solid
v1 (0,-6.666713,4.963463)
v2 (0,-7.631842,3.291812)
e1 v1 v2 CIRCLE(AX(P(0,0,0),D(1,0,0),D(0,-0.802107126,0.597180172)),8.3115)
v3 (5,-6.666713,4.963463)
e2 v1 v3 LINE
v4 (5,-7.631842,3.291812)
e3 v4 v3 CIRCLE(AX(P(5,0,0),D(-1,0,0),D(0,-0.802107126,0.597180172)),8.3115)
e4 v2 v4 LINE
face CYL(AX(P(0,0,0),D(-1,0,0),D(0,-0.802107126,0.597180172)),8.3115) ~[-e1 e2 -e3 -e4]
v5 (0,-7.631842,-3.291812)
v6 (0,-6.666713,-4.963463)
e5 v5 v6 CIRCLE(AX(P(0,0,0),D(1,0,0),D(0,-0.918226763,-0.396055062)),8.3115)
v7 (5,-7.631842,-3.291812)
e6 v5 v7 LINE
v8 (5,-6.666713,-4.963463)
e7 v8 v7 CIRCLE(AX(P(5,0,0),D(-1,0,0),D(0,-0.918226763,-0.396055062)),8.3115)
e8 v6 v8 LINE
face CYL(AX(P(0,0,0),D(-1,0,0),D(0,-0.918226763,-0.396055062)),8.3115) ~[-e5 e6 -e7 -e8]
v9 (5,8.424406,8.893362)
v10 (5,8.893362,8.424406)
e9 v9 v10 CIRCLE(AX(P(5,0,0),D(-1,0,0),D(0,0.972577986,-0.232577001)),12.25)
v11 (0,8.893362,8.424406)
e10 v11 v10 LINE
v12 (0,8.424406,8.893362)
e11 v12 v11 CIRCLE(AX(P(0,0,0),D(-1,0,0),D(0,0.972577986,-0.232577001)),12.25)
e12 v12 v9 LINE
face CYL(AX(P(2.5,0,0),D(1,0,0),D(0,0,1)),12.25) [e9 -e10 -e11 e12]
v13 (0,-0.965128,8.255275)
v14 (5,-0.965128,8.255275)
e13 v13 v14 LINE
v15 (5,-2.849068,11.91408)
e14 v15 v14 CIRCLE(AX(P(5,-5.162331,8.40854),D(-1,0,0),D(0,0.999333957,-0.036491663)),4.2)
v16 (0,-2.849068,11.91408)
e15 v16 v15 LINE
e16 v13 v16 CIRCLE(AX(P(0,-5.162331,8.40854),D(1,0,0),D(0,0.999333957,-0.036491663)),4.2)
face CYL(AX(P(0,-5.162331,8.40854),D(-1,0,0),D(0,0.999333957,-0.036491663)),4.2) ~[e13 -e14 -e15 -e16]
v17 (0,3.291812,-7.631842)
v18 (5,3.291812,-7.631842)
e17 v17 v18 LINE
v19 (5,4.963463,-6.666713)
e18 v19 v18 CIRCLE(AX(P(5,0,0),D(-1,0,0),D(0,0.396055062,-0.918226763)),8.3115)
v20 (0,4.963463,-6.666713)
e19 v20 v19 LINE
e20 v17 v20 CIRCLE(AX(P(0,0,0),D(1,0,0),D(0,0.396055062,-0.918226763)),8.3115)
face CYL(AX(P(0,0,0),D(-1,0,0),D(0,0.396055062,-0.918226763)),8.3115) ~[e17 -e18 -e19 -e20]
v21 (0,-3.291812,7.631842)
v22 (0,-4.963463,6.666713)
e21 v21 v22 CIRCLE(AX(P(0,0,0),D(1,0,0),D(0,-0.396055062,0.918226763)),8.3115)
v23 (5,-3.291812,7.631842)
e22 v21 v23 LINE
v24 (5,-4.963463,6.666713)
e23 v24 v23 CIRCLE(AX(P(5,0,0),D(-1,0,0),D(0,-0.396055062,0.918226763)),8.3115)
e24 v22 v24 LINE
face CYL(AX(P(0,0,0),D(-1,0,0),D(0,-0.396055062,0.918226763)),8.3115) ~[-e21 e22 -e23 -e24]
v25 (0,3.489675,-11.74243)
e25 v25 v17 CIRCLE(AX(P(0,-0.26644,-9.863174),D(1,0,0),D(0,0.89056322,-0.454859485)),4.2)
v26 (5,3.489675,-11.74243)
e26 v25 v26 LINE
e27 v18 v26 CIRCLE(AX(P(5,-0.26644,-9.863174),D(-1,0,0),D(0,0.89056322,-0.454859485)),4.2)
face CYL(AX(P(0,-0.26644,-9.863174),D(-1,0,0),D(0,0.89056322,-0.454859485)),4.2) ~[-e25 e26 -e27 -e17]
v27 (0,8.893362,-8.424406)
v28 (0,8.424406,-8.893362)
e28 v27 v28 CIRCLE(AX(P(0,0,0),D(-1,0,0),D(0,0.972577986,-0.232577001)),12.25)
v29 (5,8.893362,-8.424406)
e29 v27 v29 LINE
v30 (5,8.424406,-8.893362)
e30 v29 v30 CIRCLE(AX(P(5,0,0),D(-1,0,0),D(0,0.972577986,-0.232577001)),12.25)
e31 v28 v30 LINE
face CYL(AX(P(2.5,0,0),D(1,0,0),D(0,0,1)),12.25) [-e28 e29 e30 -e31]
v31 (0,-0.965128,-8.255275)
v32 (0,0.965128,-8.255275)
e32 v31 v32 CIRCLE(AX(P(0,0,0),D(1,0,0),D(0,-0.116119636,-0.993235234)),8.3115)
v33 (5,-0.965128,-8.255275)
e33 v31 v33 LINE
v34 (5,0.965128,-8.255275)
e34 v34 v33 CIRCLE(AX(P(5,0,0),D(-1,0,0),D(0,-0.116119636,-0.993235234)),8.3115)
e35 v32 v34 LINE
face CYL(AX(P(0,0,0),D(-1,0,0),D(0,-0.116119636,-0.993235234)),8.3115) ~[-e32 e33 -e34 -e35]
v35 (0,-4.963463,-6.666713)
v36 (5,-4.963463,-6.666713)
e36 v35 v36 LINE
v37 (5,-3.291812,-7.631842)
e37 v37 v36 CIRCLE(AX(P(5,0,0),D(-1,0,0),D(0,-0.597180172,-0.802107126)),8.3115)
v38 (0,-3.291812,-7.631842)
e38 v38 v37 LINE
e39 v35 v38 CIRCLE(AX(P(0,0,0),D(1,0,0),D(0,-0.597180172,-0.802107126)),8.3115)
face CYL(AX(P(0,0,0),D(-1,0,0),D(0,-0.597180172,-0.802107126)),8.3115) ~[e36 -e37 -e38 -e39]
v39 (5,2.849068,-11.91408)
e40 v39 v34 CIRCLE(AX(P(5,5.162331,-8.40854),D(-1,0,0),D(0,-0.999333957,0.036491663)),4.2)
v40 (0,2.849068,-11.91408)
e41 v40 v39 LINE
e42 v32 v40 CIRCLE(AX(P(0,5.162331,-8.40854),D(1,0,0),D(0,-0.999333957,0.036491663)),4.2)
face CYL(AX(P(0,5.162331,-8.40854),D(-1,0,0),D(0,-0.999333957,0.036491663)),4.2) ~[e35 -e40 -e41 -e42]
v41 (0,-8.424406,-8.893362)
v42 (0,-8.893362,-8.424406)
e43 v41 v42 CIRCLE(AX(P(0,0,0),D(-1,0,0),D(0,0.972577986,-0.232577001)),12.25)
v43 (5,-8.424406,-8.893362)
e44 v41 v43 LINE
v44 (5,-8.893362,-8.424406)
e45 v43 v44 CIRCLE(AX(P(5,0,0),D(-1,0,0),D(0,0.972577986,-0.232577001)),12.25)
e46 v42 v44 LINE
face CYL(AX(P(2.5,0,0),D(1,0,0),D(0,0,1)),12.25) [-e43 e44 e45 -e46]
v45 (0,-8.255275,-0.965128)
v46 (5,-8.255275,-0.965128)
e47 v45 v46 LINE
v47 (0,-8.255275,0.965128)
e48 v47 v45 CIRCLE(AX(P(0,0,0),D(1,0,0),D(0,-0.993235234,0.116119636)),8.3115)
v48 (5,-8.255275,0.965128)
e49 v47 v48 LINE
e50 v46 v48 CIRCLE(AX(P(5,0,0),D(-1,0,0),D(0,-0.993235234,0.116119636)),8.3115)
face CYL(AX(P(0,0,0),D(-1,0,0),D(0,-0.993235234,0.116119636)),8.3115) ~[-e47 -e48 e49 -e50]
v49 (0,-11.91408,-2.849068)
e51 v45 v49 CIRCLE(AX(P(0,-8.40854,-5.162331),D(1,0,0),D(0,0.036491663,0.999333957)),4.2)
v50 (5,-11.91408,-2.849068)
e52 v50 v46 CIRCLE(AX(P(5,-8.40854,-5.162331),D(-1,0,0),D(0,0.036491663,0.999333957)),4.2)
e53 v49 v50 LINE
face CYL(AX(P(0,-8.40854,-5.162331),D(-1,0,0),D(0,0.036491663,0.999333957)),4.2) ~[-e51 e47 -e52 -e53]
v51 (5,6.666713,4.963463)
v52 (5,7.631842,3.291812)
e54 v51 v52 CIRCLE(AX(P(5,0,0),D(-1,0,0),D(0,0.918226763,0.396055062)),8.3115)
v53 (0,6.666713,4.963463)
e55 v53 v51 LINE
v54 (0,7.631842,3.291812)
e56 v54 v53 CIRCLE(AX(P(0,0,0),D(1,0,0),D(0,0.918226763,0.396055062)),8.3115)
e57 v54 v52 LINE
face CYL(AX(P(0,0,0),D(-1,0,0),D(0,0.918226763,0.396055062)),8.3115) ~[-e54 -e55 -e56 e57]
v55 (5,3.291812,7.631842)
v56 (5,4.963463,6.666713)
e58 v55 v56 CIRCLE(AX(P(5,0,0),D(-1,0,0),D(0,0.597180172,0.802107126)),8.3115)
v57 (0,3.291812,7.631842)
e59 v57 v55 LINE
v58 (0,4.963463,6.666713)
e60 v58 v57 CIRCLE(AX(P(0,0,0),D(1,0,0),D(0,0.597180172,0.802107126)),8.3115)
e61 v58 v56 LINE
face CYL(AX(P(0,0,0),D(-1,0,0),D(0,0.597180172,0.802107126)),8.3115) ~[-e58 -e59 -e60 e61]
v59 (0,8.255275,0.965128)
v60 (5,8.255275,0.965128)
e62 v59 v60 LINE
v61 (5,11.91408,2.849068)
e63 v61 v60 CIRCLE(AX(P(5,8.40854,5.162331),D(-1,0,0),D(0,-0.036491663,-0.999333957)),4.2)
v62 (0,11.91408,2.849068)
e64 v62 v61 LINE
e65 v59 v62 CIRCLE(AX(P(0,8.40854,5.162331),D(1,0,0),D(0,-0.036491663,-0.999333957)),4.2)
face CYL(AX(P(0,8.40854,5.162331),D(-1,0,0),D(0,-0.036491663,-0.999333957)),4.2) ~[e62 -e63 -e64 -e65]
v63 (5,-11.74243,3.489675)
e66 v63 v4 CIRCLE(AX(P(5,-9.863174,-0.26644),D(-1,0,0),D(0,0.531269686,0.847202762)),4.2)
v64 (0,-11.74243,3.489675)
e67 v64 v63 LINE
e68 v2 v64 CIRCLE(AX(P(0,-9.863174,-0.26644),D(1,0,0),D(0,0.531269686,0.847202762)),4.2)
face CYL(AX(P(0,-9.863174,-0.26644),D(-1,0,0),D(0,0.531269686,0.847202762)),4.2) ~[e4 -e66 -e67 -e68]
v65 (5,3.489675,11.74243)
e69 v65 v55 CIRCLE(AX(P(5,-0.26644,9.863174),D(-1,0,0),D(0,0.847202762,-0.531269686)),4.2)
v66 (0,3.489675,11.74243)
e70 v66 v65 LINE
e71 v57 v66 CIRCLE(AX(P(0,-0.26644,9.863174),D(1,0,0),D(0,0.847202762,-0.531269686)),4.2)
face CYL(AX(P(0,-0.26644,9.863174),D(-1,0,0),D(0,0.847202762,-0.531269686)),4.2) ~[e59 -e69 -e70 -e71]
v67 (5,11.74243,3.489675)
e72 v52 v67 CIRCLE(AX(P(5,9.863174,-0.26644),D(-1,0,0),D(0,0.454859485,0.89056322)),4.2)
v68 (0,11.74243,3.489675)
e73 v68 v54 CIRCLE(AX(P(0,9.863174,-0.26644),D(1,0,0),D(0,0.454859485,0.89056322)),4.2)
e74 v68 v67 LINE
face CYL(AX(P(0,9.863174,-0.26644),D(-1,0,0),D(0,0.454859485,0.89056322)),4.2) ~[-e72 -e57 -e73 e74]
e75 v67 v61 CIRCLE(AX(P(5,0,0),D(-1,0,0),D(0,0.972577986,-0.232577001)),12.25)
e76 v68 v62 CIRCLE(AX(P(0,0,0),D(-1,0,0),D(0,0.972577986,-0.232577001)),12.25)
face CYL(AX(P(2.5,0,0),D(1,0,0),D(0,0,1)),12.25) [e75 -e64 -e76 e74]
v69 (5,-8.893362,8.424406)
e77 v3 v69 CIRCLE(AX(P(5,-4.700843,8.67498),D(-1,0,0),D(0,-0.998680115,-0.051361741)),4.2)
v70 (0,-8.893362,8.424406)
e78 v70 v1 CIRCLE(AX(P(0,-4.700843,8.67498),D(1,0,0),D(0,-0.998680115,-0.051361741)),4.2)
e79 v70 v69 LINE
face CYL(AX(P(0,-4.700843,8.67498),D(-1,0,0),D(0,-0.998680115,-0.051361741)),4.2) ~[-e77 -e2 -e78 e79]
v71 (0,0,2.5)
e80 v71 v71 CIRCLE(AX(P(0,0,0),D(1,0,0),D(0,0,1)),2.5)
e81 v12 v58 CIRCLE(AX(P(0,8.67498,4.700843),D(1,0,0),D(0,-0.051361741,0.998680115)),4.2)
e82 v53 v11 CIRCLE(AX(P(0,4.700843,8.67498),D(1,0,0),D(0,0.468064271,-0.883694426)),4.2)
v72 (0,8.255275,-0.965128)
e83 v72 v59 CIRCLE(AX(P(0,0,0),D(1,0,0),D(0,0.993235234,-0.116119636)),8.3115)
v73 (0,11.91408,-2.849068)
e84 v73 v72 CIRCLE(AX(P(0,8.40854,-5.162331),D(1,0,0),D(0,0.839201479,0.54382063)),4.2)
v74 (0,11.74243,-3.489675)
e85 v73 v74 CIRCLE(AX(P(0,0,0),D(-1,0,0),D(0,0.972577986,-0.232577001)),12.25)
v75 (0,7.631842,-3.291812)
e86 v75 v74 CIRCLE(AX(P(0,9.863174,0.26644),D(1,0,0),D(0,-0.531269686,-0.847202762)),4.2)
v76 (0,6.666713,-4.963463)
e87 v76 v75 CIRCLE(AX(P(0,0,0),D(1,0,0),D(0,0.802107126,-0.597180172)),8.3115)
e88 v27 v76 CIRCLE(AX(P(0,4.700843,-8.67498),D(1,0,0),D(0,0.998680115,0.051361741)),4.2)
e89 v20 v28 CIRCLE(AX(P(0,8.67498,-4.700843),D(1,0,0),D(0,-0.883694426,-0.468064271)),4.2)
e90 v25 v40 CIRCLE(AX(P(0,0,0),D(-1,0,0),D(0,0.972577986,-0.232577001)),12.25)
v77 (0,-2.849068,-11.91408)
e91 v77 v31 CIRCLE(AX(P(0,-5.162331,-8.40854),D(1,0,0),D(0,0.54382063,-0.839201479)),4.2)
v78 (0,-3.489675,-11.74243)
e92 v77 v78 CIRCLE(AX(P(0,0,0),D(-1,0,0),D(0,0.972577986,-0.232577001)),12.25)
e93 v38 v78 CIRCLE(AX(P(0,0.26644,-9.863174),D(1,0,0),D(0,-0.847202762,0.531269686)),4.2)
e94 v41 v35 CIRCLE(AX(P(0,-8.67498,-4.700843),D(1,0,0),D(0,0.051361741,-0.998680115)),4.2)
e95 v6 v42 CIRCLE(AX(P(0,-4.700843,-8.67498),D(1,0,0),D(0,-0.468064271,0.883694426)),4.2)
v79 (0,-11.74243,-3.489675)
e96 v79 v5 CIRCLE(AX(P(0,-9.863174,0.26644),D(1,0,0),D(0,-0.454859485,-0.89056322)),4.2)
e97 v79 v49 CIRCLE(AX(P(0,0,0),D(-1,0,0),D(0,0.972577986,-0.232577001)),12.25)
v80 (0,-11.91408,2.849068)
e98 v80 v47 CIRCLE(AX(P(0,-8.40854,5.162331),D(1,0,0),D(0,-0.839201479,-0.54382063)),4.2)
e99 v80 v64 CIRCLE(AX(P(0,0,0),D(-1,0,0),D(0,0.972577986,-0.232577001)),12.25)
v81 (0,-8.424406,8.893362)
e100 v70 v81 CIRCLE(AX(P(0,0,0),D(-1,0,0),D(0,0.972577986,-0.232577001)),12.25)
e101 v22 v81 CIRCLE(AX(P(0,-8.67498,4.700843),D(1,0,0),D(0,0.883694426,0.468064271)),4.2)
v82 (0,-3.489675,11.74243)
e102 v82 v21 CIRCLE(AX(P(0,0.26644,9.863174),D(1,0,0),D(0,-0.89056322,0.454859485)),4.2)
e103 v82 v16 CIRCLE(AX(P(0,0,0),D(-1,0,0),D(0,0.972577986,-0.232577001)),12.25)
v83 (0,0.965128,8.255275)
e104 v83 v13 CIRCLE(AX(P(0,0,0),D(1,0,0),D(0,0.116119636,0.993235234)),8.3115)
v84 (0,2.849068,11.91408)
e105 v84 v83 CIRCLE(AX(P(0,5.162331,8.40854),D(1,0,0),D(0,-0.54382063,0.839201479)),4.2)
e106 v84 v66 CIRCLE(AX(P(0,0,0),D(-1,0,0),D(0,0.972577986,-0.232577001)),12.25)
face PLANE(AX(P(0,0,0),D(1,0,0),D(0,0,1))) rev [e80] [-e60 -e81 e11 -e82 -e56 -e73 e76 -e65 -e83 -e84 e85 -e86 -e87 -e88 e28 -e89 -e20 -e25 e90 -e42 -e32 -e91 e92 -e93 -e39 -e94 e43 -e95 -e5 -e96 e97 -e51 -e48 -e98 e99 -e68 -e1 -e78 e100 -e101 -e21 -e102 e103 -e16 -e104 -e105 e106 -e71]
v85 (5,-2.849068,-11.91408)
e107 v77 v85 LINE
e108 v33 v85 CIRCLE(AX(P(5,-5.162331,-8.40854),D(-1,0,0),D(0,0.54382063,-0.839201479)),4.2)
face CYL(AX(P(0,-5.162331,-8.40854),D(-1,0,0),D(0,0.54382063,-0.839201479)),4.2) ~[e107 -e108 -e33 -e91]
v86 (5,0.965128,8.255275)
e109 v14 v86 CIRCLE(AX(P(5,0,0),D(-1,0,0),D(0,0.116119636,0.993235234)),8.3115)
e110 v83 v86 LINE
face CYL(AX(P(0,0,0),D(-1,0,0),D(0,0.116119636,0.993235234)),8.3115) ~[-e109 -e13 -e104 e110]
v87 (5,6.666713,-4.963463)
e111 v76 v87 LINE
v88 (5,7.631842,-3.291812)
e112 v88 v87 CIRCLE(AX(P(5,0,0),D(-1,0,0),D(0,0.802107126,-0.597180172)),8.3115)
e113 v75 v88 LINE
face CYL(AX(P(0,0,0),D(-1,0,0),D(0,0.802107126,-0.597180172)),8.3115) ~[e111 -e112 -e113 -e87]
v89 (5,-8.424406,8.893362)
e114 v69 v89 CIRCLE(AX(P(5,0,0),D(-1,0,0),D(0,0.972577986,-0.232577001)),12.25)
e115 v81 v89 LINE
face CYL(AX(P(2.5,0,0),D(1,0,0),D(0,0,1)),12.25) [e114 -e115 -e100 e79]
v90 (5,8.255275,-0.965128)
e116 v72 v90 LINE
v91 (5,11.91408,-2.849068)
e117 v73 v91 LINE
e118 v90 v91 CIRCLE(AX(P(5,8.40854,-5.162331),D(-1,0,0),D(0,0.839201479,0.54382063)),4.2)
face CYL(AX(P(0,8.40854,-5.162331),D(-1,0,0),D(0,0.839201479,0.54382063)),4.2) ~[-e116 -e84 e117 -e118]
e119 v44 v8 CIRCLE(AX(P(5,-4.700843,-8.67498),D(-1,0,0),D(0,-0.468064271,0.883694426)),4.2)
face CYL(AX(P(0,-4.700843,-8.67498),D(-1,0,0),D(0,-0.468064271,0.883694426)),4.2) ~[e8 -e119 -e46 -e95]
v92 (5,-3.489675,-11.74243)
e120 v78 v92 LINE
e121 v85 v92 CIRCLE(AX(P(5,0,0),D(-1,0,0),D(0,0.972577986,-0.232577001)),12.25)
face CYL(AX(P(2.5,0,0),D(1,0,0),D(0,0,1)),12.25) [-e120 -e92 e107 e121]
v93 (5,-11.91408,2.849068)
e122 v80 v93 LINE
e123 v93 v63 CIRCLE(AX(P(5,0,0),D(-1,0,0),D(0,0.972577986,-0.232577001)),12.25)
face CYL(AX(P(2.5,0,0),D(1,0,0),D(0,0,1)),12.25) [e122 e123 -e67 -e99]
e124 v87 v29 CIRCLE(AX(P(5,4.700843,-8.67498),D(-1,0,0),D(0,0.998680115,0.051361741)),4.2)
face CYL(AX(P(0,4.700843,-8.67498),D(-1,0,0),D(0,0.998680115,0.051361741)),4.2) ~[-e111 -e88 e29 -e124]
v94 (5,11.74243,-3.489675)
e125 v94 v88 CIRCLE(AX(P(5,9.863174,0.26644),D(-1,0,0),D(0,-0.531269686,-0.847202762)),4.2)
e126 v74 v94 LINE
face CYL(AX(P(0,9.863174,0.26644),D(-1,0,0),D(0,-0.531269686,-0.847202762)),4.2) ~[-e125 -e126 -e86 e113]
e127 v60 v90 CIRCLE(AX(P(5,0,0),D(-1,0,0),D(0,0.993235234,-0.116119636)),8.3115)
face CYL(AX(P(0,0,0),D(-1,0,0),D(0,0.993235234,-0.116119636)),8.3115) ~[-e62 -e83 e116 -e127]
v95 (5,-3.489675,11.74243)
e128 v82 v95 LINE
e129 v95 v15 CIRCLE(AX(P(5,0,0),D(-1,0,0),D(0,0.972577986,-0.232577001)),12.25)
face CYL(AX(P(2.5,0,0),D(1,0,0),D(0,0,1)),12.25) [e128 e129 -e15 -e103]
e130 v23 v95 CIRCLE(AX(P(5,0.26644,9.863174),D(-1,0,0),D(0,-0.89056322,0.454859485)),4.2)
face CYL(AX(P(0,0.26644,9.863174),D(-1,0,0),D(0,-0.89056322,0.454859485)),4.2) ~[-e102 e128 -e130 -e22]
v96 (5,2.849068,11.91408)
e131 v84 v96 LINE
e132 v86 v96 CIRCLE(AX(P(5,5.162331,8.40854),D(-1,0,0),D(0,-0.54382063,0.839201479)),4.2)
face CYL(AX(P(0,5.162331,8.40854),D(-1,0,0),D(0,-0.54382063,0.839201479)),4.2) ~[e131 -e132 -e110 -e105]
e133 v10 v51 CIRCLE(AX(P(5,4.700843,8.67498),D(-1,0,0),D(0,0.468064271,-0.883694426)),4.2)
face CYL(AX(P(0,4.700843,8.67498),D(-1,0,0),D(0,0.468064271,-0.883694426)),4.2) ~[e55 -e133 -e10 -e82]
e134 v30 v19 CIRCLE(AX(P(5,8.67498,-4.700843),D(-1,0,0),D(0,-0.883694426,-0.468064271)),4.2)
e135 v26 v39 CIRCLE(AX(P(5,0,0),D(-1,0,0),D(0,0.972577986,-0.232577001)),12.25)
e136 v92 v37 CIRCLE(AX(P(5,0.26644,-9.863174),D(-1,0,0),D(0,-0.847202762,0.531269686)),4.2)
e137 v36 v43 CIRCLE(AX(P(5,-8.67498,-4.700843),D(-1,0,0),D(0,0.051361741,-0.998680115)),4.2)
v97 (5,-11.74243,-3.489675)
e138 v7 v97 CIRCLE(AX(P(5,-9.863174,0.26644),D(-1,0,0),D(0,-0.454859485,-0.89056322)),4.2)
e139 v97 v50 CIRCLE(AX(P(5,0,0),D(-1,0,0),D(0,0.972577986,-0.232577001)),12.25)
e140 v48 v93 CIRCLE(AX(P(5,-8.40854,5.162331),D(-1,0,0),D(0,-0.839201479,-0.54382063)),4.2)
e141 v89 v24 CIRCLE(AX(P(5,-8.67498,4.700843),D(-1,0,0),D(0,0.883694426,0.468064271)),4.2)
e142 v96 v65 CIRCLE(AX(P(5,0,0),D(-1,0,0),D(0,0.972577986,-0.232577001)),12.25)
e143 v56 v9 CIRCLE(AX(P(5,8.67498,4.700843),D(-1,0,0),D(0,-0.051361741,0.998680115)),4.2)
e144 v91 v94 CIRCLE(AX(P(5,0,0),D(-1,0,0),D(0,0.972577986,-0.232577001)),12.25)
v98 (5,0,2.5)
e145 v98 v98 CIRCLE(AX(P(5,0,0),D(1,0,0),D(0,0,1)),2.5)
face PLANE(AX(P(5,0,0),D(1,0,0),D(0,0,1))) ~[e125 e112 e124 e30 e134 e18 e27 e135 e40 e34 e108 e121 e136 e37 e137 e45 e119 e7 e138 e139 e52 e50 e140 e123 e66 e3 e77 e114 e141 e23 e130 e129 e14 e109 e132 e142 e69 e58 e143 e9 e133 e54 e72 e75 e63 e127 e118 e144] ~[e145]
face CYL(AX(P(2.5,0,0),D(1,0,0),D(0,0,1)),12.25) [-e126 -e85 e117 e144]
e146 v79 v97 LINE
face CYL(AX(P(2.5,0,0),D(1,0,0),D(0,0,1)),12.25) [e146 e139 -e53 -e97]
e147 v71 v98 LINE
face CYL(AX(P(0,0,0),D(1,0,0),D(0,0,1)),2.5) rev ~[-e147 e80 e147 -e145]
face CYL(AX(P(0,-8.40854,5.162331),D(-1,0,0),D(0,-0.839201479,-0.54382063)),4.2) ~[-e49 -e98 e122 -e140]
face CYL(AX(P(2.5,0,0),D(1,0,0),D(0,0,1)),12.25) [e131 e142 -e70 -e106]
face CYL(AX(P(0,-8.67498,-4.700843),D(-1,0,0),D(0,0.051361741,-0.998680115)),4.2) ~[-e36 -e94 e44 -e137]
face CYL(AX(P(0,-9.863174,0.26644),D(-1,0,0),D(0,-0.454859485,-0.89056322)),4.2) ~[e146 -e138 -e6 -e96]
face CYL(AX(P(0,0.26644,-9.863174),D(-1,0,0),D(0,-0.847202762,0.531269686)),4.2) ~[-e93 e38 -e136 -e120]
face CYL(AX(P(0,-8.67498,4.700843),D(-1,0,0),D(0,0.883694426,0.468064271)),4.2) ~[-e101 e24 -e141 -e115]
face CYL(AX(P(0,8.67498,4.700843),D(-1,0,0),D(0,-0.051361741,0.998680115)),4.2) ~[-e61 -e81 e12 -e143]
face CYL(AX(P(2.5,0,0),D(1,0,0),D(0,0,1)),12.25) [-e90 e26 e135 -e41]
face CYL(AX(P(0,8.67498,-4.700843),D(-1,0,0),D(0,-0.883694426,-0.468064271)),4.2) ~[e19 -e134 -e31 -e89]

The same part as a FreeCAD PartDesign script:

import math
import FreeCAD as App
import Part
import Sketcher

doc = App.newDocument("Part")
body = doc.addObject("PartDesign::Body", "Body")

# Sketch on XZ plane
sketch1 = body.newObject("Sketcher::SketchObject", "Sketch")
sketch1.AttachmentSupport = (doc.getObject("XZ_Plane"), [""])
sketch1.MapMode = "FlatFace"
sketch1.addGeometry([
    Part.LineSegment(App.Vector(0, -12.25, 0), App.Vector(0, 0, 0)),
    Part.LineSegment(App.Vector(0, 0, 0), App.Vector(5, 0, 0)),
    Part.LineSegment(App.Vector(5, 0, 0), App.Vector(5, -12.25, 0)),
    Part.LineSegment(App.Vector(5, -12.25, 0), App.Vector(0, -12.25, 0)),
], False)
sketch1.addConstraint([
    Sketcher.Constraint("Coincident", 0, 2, 1, 1),
    Sketcher.Constraint("Coincident", 1, 2, 2, 1),
    Sketcher.Constraint("Coincident", 2, 2, 3, 1),
    Sketcher.Constraint("Coincident", 3, 2, 0, 1),
    Sketcher.Constraint("Vertical", 0),
    Sketcher.Constraint("Horizontal", 1),
    Sketcher.Constraint("Vertical", 2),
    Sketcher.Constraint("Horizontal", 3),
    Sketcher.Constraint("Coincident", 0, 2, -1, 1),
    Sketcher.Constraint("DistanceX", 1, 1, 1, 2, 5.0),
    Sketcher.Constraint("DistanceY", 0, 1, 0, 2, 12.25),
])
revolution = body.newObject("PartDesign::Revolution", "Revolution")
revolution.Profile = sketch1
revolution.ReferenceAxis = (sketch1, ["H_Axis"])
revolution.Angle = 360

# Sketch on YZ plane
sketch2 = body.newObject("Sketcher::SketchObject", "Sketch001")
sketch2.AttachmentSupport = (doc.getObject("YZ_Plane"), [""])
sketch2.MapMode = "FlatFace"
sketch2.addGeometry([
    Part.ArcOfCircle(Part.Circle(App.Vector(0, 0, 0), App.Vector(0, 0, 1), 8.3115), math.radians(-6.668208), math.radians(6.668208)),
    Part.ArcOfCircle(Part.Circle(App.Vector(8.40854, -5.162331, 0), App.Vector(0, 0, 1), 4.2), math.radians(32.944106), math.radians(92.091283)),
    Part.ArcOfCircle(Part.Circle(App.Vector(0, 0, 0), App.Vector(0, 0, 1), 12.2754), math.radians(-13.560725), math.radians(13.560725)),
    Part.ArcOfCircle(Part.Circle(App.Vector(8.40854, 5.162331, 0), App.Vector(0, 0, 1), 4.2), math.radians(-92.091283), math.radians(-32.944106)),
], False)
sketch2.addConstraint([
    Sketcher.Constraint("Coincident", 0, 1, 1, 2),
    Sketcher.Constraint("Coincident", 1, 1, 2, 1),
    Sketcher.Constraint("Coincident", 2, 2, 3, 2),
    Sketcher.Constraint("Coincident", 3, 1, 0, 2),
    Sketcher.Constraint("Coincident", 0, 3, -1, 1),
    Sketcher.Constraint("Coincident", 2, 3, -1, 1),
    Sketcher.Constraint("Equal", 1, 3),
    Sketcher.Constraint("Symmetric", 1, 3, 3, 3, -1),
    Sketcher.Constraint("Radius", 1, 4.2),
    Sketcher.Constraint("Radius", 0, 8.3115),
    Sketcher.Constraint("Radius", 2, 12.2754),
    Sketcher.Constraint("DistanceX", -1, 1, 1, 3, 8.40854),
    Sketcher.Constraint("DistanceY", 1, 3, -1, 1, 5.162331),
])
pocket1 = body.newObject("PartDesign::Pocket", "Pocket")
pocket1.Profile = sketch2
pocket1.Type = "ThroughAll"
pocket1.Reversed = True
doc.recompute()

polarpattern = body.newObject("PartDesign::PolarPattern", "PolarPattern")
polarpattern.Originals = [pocket1]
polarpattern.Axis = (doc.getObject("X_Axis"), [""])
polarpattern.Angle = 360
polarpattern.Occurrences = 12
body.Tip = polarpattern

# Sketch on YZ plane
sketch3 = body.newObject("Sketcher::SketchObject", "Sketch002")
sketch3.AttachmentSupport = (doc.getObject("YZ_Plane"), [""])
sketch3.MapMode = "FlatFace"
sketch3.addGeometry(Part.Circle(App.Vector(0, 0, 0), App.Vector(0, 0, 1), 2.5), False)
sketch3.addConstraint([
    Sketcher.Constraint("Coincident", 0, 3, -1, 1),
    Sketcher.Constraint("Diameter", 0, 5.0),
])
pocket2 = body.newObject("PartDesign::Pocket", "Pocket001")
pocket2.Profile = sketch3
pocket2.Length = 100.000102
pocket2.Midplane = True

doc.recompute()
